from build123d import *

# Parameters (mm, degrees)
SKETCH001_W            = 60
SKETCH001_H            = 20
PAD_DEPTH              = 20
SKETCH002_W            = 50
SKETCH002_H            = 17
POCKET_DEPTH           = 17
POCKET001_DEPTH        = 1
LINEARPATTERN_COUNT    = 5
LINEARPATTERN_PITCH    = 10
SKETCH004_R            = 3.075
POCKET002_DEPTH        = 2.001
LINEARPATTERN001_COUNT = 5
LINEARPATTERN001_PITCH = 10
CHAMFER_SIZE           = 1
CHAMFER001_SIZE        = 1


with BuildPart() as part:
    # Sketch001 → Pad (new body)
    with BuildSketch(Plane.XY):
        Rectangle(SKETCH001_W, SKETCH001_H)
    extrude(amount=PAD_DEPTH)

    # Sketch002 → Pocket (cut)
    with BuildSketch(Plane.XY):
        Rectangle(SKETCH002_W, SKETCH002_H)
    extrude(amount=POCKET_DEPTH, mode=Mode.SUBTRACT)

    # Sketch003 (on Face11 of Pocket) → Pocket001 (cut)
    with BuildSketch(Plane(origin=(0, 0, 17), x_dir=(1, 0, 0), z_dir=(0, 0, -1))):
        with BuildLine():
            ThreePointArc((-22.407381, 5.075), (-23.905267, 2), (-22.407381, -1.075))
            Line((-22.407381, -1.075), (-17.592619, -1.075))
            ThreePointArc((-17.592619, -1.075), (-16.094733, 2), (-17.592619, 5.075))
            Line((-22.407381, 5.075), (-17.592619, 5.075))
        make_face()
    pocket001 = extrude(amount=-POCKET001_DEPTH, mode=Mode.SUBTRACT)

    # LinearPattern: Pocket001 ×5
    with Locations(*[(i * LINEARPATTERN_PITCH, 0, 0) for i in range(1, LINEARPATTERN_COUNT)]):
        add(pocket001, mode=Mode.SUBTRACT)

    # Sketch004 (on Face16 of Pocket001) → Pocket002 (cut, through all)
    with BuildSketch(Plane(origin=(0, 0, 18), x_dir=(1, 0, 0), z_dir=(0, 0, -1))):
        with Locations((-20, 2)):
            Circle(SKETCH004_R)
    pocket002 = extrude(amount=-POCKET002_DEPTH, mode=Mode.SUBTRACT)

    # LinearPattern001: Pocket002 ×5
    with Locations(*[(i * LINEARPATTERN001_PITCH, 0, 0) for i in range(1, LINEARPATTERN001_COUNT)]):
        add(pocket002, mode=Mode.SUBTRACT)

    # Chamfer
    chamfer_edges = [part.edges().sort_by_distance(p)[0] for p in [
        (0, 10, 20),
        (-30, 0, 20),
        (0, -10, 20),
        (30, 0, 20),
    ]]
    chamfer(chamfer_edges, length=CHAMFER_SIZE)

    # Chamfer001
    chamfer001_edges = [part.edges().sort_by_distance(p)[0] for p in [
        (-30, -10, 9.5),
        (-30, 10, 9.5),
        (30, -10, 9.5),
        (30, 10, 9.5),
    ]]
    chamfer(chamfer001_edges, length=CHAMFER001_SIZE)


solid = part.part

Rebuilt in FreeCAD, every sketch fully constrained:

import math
import FreeCAD as App
import Part
import Sketcher

V = App.Vector


def edges_at(feature, points):
    """Names of the edges that pass closest to the given points."""
    edges = feature.Shape.Edges
    near = lambda p: min(range(len(edges)), key=lambda i: edges[i].distToShape(Part.Vertex(*p))[0])
    return sorted({f"Edge{near(p) + 1}" for p in points})

doc = App.newDocument("Part")
body = doc.addObject("PartDesign::Body", "Body")

# Sketch on XY plane
sketch1 = body.newObject("Sketcher::SketchObject", "Sketch")
sketch1.AttachmentSupport = (doc.getObject("XY_Plane"), [""])
sketch1.MapMode = "FlatFace"
sketch1.addGeometry(Part.LineSegment(V(-30, 10, 0), V(-30, -10, 0)), False)
sketch1.addGeometry(Part.LineSegment(V(-30, -10, 0), V(30, -10, 0)), False)
sketch1.addGeometry(Part.LineSegment(V(30, -10, 0), V(30, 10, 0)), False)
sketch1.addGeometry(Part.LineSegment(V(30, 10, 0), V(-30, 10, 0)), False)
sketch1.addConstraint(Sketcher.Constraint("Coincident", 0, 2, 1, 1))
sketch1.addConstraint(Sketcher.Constraint("Coincident", 1, 2, 2, 1))
sketch1.addConstraint(Sketcher.Constraint("Coincident", 2, 2, 3, 1))
sketch1.addConstraint(Sketcher.Constraint("Coincident", 3, 2, 0, 1))
sketch1.addConstraint(Sketcher.Constraint("Vertical", 0))
sketch1.addConstraint(Sketcher.Constraint("Horizontal", 1))
sketch1.addConstraint(Sketcher.Constraint("Vertical", 2))
sketch1.addConstraint(Sketcher.Constraint("Horizontal", 3))
sketch1.addConstraint(Sketcher.Constraint("Symmetric", 0, 2, 2, 2, -1, 1))
sketch1.addConstraint(Sketcher.Constraint("DistanceX", 1, 1, 1, 2, 60.0))
sketch1.addConstraint(Sketcher.Constraint("DistanceY", 0, 2, 0, 1, 20.0))
pad1 = body.newObject("PartDesign::Pad", "Pad")
pad1.Profile = sketch1
pad1.Length = 20

# Sketch on XY plane
sketch2 = body.newObject("Sketcher::SketchObject", "Sketch001")
sketch2.AttachmentSupport = (doc.getObject("XY_Plane"), [""])
sketch2.MapMode = "FlatFace"
sketch2.addGeometry(Part.LineSegment(V(-25, 8, 0), V(-25, -8, 0)), False)
sketch2.addGeometry(Part.LineSegment(V(-25, -8, 0), V(25, -8, 0)), False)
sketch2.addGeometry(Part.LineSegment(V(25, -8, 0), V(25, 8, 0)), False)
sketch2.addGeometry(Part.LineSegment(V(25, 8, 0), V(-25, 8, 0)), False)
sketch2.addConstraint(Sketcher.Constraint("Coincident", 0, 2, 1, 1))
sketch2.addConstraint(Sketcher.Constraint("Coincident", 1, 2, 2, 1))
sketch2.addConstraint(Sketcher.Constraint("Coincident", 2, 2, 3, 1))
sketch2.addConstraint(Sketcher.Constraint("Coincident", 3, 2, 0, 1))
sketch2.addConstraint(Sketcher.Constraint("Vertical", 0))
sketch2.addConstraint(Sketcher.Constraint("Horizontal", 1))
sketch2.addConstraint(Sketcher.Constraint("Vertical", 2))
sketch2.addConstraint(Sketcher.Constraint("Horizontal", 3))
sketch2.addConstraint(Sketcher.Constraint("Symmetric", 0, 2, 2, 2, -1, 1))
sketch2.addConstraint(Sketcher.Constraint("DistanceX", 1, 1, 1, 2, 50.0))
sketch2.addConstraint(Sketcher.Constraint("DistanceY", 0, 2, 0, 1, 17.0))
pocket1 = body.newObject("PartDesign::Pocket", "Pocket")
pocket1.Profile = sketch2
pocket1.Length = 17
pocket1.Reversed = True

# Sketch on XY plane
sketch3 = body.newObject("Sketcher::SketchObject", "Sketch002")
sketch3.AttachmentSupport = (doc.getObject("XY_Plane"), [""])
sketch3.MapMode = "FlatFace"
sketch3.AttachmentOffset = App.Placement(V(0, 0, 17), App.Rotation())
sketch3.addGeometry(Part.ArcOfCircle(Part.Circle(V(-20, -2, 0), V(0, 0, 1), 3.9), math.radians(128), math.radians(232)), False)
sketch3.addGeometry(Part.LineSegment(V(-22.4, 1.1, 0), V(-17.6, 1.1, 0)), False)
sketch3.addGeometry(Part.ArcOfCircle(Part.Circle(V(-20, -2, 0), V(0, 0, 1), 3.9), math.radians(-52), math.radians(52)), False)
sketch3.addGeometry(Part.LineSegment(V(-17.6, -5.1, 0), V(-22.4, -5.1, 0)), False)
sketch3.addConstraint(Sketcher.Constraint("Coincident", 0, 1, 1, 1))
sketch3.addConstraint(Sketcher.Constraint("Coincident", 1, 2, 2, 2))
sketch3.addConstraint(Sketcher.Constraint("Coincident", 2, 1, 3, 1))
sketch3.addConstraint(Sketcher.Constraint("Coincident", 3, 2, 0, 2))
sketch3.addConstraint(Sketcher.Constraint("Horizontal", 1))
sketch3.addConstraint(Sketcher.Constraint("Horizontal", 3))
sketch3.addConstraint(Sketcher.Constraint("Coincident", 2, 3, 0, 3))
sketch3.addConstraint(Sketcher.Constraint("Equal", 0, 2))
sketch3.addConstraint(Sketcher.Constraint("Vertical", 1, 2, 2, 1))
sketch3.addConstraint(Sketcher.Constraint("DistanceX", 0, 3, -1, 1, 20.000001))
sketch3.addConstraint(Sketcher.Constraint("DistanceY", 0, 3, -1, 1, 2.0))
sketch3.addConstraint(Sketcher.Constraint("DistanceY", 2, 1, 1, 2, 6.15))
sketch3.addConstraint(Sketcher.Constraint("Radius", 0, 3.905266))
pocket2 = body.newObject("PartDesign::Pocket", "Pocket001")
pocket2.Profile = sketch3
pocket2.Length = 1
pocket2.Reversed = True
doc.recompute()

linearpattern = body.newObject("PartDesign::LinearPattern", "LinearPattern")
linearpattern.Originals = [pocket2]
linearpattern.Direction = (doc.getObject("X_Axis"), [""])
linearpattern.Mode = "offset"
linearpattern.Offset = 10
linearpattern.Occurrences = 5
body.Tip = linearpattern

# Sketch on XY plane
sketch4 = body.newObject("Sketcher::SketchObject", "Sketch003")
sketch4.AttachmentSupport = (doc.getObject("XY_Plane"), [""])
sketch4.MapMode = "FlatFace"
sketch4.AttachmentOffset = App.Placement(V(0, 0, 18), App.Rotation())
sketch4.addGeometry(Part.Circle(V(-20, -2, 0), V(0, 0, 1), 3.1), False)
sketch4.addConstraint(Sketcher.Constraint("Diameter", 0, 6.15))
sketch4.addConstraint(Sketcher.Constraint("DistanceX", 0, 3, -1, 1, 20.0))
sketch4.addConstraint(Sketcher.Constraint("DistanceY", 0, 3, -1, 1, 2.0))
pocket3 = body.newObject("PartDesign::Pocket", "Pocket002")
pocket3.Profile = sketch4
pocket3.Type = "ThroughAll"
pocket3.Reversed = True
doc.recompute()

linearpattern2 = body.newObject("PartDesign::LinearPattern", "LinearPattern001")
linearpattern2.Originals = [pocket3]
linearpattern2.Direction = (doc.getObject("X_Axis"), [""])
linearpattern2.Mode = "offset"
linearpattern2.Offset = 10
linearpattern2.Occurrences = 5
body.Tip = linearpattern2
doc.recompute()

chamfer = body.newObject("PartDesign::Chamfer", "Chamfer")
chamfer.Base = (linearpattern2, edges_at(linearpattern2, [
    (0, 10, 20),
    (-30, 0, 20),
    (0, -10, 20),
    (30, 0, 20),
]))
chamfer.Size = 1
doc.recompute()

chamfer2 = body.newObject("PartDesign::Chamfer", "Chamfer001")
chamfer2.Base = (chamfer, edges_at(chamfer, [
    (-30, -10, 9.5),
    (-30, 10, 9.5),
    (30, -10, 9.5),
    (30, 10, 9.5),
]))
chamfer2.Size = 1

doc.recompute()
